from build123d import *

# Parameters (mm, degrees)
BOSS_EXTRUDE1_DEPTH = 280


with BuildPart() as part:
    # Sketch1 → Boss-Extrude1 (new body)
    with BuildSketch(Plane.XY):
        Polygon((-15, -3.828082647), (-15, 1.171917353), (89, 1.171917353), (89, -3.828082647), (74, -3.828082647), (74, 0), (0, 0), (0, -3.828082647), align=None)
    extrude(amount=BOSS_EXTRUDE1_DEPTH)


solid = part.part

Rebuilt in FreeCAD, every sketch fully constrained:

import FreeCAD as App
import Part
import Sketcher
from FreeCAD import Vector
Q = App.Units.Quantity


def add_polygon(sketch, points):
    """Adds a closed chain of lines whose ends are joined by coincident constraints."""
    first, n = sketch.GeometryCount, len(points)
    for a, b in zip(points, points[1:] + points[:1]):
        sketch.addGeometry(Part.LineSegment(App.Vector(*a, 0), App.Vector(*b, 0)), False)
    for i in range(n):
        sketch.addConstraint(Sketcher.Constraint("Coincident", first + i, 2, first + (i + 1) % n, 1))

doc = App.newDocument("Part")
body = doc.addObject("PartDesign::Body", "Body")

# Sketch on XY plane
sketch1 = body.newObject("Sketcher::SketchObject", "Sketch")
sketch1.AttachmentSupport = (doc.getObject("XY_Plane"), [""])
sketch1.MapMode = "FlatFace"
add_polygon(sketch1, [(-15, 1.171917), (-15, -3.828083), (0, -3.828083), (0, 0), (74, 0), (74, -3.828083), (89, -3.828083), (89, 1.171917)])  # lines 0-7
sketch1.addConstraint([
    Sketcher.Constraint("Vertical", 0),
    Sketcher.Constraint("Horizontal", 1),
    Sketcher.Constraint("Vertical", 2),
    Sketcher.Constraint("Horizontal", 3),
    Sketcher.Constraint("Vertical", 4),
    Sketcher.Constraint("Horizontal", 5),
    Sketcher.Constraint("Vertical", 6),
    Sketcher.Constraint("Horizontal", 7),
    Sketcher.Constraint("Coincident", 2, 2, -1, 1),
    Sketcher.Constraint("Horizontal", 1, 2, 4, 2),
    Sketcher.Constraint("Equal", 1, 5),
    Sketcher.Constraint("DistanceX", 1, 1, 1, 2, Q("15 mm")),
    Sketcher.Constraint("DistanceX", 3, 1, 3, 2, Q("74 mm")),
    Sketcher.Constraint("DistanceY", 0, 2, 0, 1, Q("5 mm")),
    Sketcher.Constraint("DistanceY", 2, 1, 2, 2, Q("3.828083 mm")),
])
pad1 = body.newObject("PartDesign::Pad", "Pad")
pad1.Profile = sketch1
pad1.Length = 280

doc.recompute()
